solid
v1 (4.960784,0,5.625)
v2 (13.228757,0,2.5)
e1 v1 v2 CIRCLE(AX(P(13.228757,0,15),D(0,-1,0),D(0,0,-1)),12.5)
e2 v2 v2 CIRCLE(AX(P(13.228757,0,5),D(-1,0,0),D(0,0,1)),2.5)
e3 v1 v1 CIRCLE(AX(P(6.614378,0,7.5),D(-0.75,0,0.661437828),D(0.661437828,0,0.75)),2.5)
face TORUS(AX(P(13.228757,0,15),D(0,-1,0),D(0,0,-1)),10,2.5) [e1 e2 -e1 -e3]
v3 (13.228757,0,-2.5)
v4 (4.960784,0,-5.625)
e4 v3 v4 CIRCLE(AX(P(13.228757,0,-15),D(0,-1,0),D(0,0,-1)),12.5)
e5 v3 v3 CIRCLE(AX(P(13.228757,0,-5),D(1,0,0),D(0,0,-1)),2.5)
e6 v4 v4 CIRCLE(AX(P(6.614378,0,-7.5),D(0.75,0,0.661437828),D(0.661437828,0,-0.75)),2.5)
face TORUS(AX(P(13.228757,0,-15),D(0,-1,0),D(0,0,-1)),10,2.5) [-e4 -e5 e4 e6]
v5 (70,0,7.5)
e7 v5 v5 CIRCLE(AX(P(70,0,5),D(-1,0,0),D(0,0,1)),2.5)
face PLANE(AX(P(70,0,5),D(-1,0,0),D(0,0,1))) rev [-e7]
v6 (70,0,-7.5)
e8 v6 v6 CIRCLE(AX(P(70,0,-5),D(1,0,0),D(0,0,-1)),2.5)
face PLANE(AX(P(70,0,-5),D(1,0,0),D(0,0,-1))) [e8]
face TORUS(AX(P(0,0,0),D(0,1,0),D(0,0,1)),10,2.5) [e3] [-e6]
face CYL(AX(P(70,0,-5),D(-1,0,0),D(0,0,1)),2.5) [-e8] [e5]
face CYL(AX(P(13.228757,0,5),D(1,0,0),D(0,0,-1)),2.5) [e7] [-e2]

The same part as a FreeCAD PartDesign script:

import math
import FreeCAD as App
import Part
import Sketcher
from FreeCAD import Vector
Q = App.Units.Quantity

doc = App.newDocument("Part")
body = doc.addObject("PartDesign::Body", "Body")

# Sketch on YZ plane
sketch1 = doc.addObject("Sketcher::SketchObject", "Sketch")
body.addObject(sketch1)
sketch1.AttachmentSupport = (doc.YZ_Plane, [""])
sketch1.MapMode = "FlatFace"
sketch1.AttachmentOffset = App.Placement(Vector(0, 0, 70), App.Rotation())
sketch1.addGeometry(Part.Circle(Vector(0, -5, 0), Vector(0, 0, 1), 2.5), False)
sketch1.addConstraint([
    Sketcher.Constraint("PointOnObject", 0, 3, -2),
    Sketcher.Constraint("Diameter", 0, Q("5 mm")),
    Sketcher.Constraint("DistanceY", 0, 3, -1, 1, Q("5 mm")),
])

# Sketch on XZ plane
sketch2 = doc.addObject("Sketcher::SketchObject", "Sketch001")
body.addObject(sketch2)
sketch2.AttachmentSupport = (doc.XZ_Plane, [""])
sketch2.MapMode = "FlatFace"
sketch2.addGeometry([
    Part.LineSegment(Vector(70, -5, 0), Vector(13.228757, -5, 0)),  # 0
    Part.ArcOfCircle(Part.Circle(Vector(13.228757, -15, 0), Vector(0, 0, 1), 10), math.radians(90), math.radians(131.409622)),  # 1
    Part.ArcOfCircle(Part.Circle(Vector(0, 0, 0), Vector(0, 0, 1), 10), math.radians(48.590378), math.radians(311.409622)),  # 2
    Part.ArcOfCircle(Part.Circle(Vector(13.228757, 15, 0), Vector(0, 0, 1), 10), math.radians(-131.409622), math.radians(-90)),  # 3
    Part.LineSegment(Vector(13.228757, 5, 0), Vector(70, 5, 0)),  # 4
], False)
sketch2.addConstraint([
    Sketcher.Constraint("Tangent", 0, 2, 1, 1),
    Sketcher.Constraint("Tangent", 1, 2, 2, 2),
    Sketcher.Constraint("Tangent", 2, 1, 3, 1),
    Sketcher.Constraint("Tangent", 3, 2, 4, 1),
    Sketcher.Constraint("Horizontal", 0),
    Sketcher.Constraint("Horizontal", 4),
    Sketcher.Constraint("Coincident", 2, 3, -1, 1),
    Sketcher.Constraint("Equal", 1, 2),
    Sketcher.Constraint("Equal", 2, 3),
    Sketcher.Constraint("Symmetric", 0, 1, 4, 2, -1),
    Sketcher.Constraint("Radius", 1, Q("10 mm")),
    Sketcher.Constraint("DistanceY", 1, 3, -1, 1, Q("15 mm")),
    Sketcher.Constraint("DistanceX", -1, 1, 0, 1, Q("70 mm")),
])
doc.recompute()

additivepipe = doc.addObject("PartDesign::AdditivePipe", "AdditivePipe")
body.addObject(additivepipe)
additivepipe.Profile = sketch1
additivepipe.Spine = (sketch2, ["Edge1", "Edge2", "Edge3", "Edge4", "Edge5"])

doc.recompute()
